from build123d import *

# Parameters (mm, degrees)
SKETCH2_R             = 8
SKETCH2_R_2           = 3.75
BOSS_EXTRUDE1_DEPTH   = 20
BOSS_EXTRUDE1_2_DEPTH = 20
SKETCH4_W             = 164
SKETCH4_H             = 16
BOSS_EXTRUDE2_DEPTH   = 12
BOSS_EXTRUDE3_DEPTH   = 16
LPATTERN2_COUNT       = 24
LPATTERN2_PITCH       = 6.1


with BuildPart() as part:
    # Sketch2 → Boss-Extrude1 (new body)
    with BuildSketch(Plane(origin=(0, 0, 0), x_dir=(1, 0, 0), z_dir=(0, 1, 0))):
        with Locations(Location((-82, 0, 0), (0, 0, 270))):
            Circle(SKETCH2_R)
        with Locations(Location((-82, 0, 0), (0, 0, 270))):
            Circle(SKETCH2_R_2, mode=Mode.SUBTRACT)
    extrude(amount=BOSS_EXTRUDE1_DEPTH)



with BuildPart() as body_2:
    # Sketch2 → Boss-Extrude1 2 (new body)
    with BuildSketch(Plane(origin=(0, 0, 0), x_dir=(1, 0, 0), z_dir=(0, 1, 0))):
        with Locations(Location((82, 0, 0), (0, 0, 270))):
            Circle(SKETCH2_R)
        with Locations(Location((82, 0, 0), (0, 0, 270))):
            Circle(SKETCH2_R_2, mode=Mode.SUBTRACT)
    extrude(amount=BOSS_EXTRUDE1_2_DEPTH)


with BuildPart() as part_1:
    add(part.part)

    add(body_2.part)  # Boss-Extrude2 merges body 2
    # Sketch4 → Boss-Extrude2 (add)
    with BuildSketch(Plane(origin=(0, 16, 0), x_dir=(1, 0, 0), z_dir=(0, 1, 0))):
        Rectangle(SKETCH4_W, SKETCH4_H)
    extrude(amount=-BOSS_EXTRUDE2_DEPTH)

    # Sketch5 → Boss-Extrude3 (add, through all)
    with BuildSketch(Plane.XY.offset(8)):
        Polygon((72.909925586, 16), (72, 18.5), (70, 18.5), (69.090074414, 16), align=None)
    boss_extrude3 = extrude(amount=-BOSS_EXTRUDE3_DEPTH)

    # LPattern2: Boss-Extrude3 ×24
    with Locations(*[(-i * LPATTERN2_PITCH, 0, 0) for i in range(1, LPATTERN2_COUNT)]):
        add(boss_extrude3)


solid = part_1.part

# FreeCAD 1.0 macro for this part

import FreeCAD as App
import Part
import Sketcher

V = App.Vector
Q = App.Units.Quantity

doc = App.newDocument("Part")
params = doc.addObject("Spreadsheet::Sheet", "Params")
for row, (alias, value) in enumerate([
    ("sketch1_diameter", "16 mm"),
    ("sketch1_diameter2", "7.5 mm"),
    ("pad1_length", "20 mm"),
    ("sketch2_diameter", "16 mm"),
    ("sketch2_diameter2", "7.5 mm"),
    ("pad2_length", "20 mm"),
    ("sketch3_width", "164 mm"),
    ("sketch3_height", "16 mm"),
    ("pad3_length", "12 mm"),
    ("sketch4_width", "2 mm"),
    ("pad4_length", "16 mm"),
    ("linearpattern_pitch", "6.1 mm"),
], start=1):
    params.set(f"A{row}", alias)
    params.set(f"B{row}", "=" + value)
    params.setAlias(f"B{row}", alias)

body = doc.addObject("PartDesign::Body", "Body")

sketch1 = doc.addObject("Sketcher::SketchObject", "Sketch")
body.addObject(sketch1)
sketch1.AttachmentSupport = (doc.XZ_Plane, [""])
sketch1.MapMode = "FlatFace"
sketch1.addGeometry([
    Part.Circle(V(-82, 0, 0), V(0, 0, 1), 8),
    Part.Circle(V(-82, 0, 0), V(0, 0, 1), 3.8),
], False)
sketch1.addConstraint([
    Sketcher.Constraint("Coincident", 1, 3, 0, 3),
    Sketcher.Constraint("PointOnObject", 0, 3, -1),
    Sketcher.Constraint("Diameter", 0, 16.0),
    Sketcher.Constraint("Diameter", 1, 7.5),
    Sketcher.Constraint("DistanceX", 0, 3, -1, 1, 82.0),
])
sketch1.setExpression("Constraints[2]", "Params.sketch1_diameter")
sketch1.setExpression("Constraints[3]", "Params.sketch1_diameter2")
pad1 = doc.addObject("PartDesign::Pad", "Pad")
body.addObject(pad1)
pad1.Profile = sketch1
pad1.setExpression("Length", "Params.pad1_length")
pad1.Reversed = True
body2 = doc.addObject("PartDesign::Body", "Body001")

sketch2 = doc.addObject("Sketcher::SketchObject", "Sketch001")
body2.addObject(sketch2)
sketch2.AttachmentSupport = (doc.getObject("XZ_Plane001"), [""])
sketch2.MapMode = "FlatFace"
sketch2.addGeometry([
    Part.Circle(V(82, 0, 0), V(0, 0, 1), 8),
    Part.Circle(V(82, 0, 0), V(0, 0, 1), 3.8),
], False)
sketch2.addConstraint([
    Sketcher.Constraint("Coincident", 1, 3, 0, 3),
    Sketcher.Constraint("PointOnObject", 0, 3, -1),
    Sketcher.Constraint("Diameter", 0, 16.0),
    Sketcher.Constraint("Diameter", 1, 7.5),
    Sketcher.Constraint("DistanceX", -1, 1, 0, 3, 82.0),
])
sketch2.setExpression("Constraints[2]", "Params.sketch2_diameter")
sketch2.setExpression("Constraints[3]", "Params.sketch2_diameter2")
pad2 = doc.addObject("PartDesign::Pad", "Pad001")
body2.addObject(pad2)
pad2.Profile = sketch2
pad2.setExpression("Length", "Params.pad2_length")
pad2.Reversed = True
body.AllowCompound = True
doc.recompute()

boolean = doc.addObject("PartDesign::Boolean", "Boolean")
body.addObject(boolean)
boolean.Type = "Fuse"
boolean.addObjects([body2])

sketch3 = doc.addObject("Sketcher::SketchObject", "Sketch002")
body.addObject(sketch3)
sketch3.AttachmentSupport = (doc.XZ_Plane, [""])
sketch3.MapMode = "FlatFace"
sketch3.AttachmentOffset = App.Placement(V(0, 0, -16), App.Rotation())
sketch3.addGeometry([
    Part.LineSegment(V(-82, -8, 0), V(-82, 8, 0)),
    Part.LineSegment(V(-82, 8, 0), V(82, 8, 0)),
    Part.LineSegment(V(82, 8, 0), V(82, -8, 0)),
    Part.LineSegment(V(82, -8, 0), V(-82, -8, 0)),
], False)
sketch3.addConstraint([
    Sketcher.Constraint("Coincident", 0, 2, 1, 1),
    Sketcher.Constraint("Coincident", 1, 2, 2, 1),
    Sketcher.Constraint("Coincident", 2, 2, 3, 1),
    Sketcher.Constraint("Coincident", 3, 2, 0, 1),
    Sketcher.Constraint("Vertical", 0),
    Sketcher.Constraint("Horizontal", 1),
    Sketcher.Constraint("Vertical", 2),
    Sketcher.Constraint("Horizontal", 3),
    Sketcher.Constraint("Symmetric", 0, 2, 2, 2, -1, 1),
    Sketcher.Constraint("DistanceX", 1, 1, 1, 2, 164.0),
    Sketcher.Constraint("DistanceY", 0, 1, 0, 2, 16.0),
])
sketch3.setExpression("Constraints[9]", "Params.sketch3_width")
sketch3.setExpression("Constraints[10]", "Params.sketch3_height")
pad3 = doc.addObject("PartDesign::Pad", "Pad002")
body.addObject(pad3)
pad3.Profile = sketch3
pad3.setExpression("Length", "Params.pad3_length")

sketch4 = doc.addObject("Sketcher::SketchObject", "Sketch003")
body.addObject(sketch4)
sketch4.AttachmentSupport = (doc.XY_Plane, [""])
sketch4.MapMode = "FlatFace"
sketch4.AttachmentOffset = App.Placement(V(0, 0, 8), App.Rotation())
sketch4.addGeometry([
    Part.LineSegment(V(72.9, 16, 0), V(72, 18.5, 0)),
    Part.LineSegment(V(72, 18.5, 0), V(70, 18.5, 0)),
    Part.LineSegment(V(70, 18.5, 0), V(69.1, 16, 0)),
    Part.LineSegment(V(69.1, 16, 0), V(72.9, 16, 0)),
], False)
sketch4.addConstraint([
    Sketcher.Constraint("Coincident", 0, 2, 1, 1),
    Sketcher.Constraint("Coincident", 1, 2, 2, 1),
    Sketcher.Constraint("Coincident", 2, 2, 3, 1),
    Sketcher.Constraint("Coincident", 3, 2, 0, 1),
    Sketcher.Constraint("Horizontal", 1),
    Sketcher.Constraint("Horizontal", 3),
    Sketcher.Constraint("Equal", 0, 2),
    Sketcher.Constraint("DistanceX", 1, 2, 1, 1, 2.0),
    Sketcher.Constraint("Angle", 0, Q("110 deg")),
    Sketcher.Constraint("DistanceX", -1, 1, 0, 2, 72.0),
    Sketcher.Constraint("DistanceY", -1, 1, 2, 2, 16.0),
    Sketcher.Constraint("DistanceY", -1, 1, 0, 2, 18.5),
])
sketch4.setExpression("Constraints[7]", "Params.sketch4_width")
pad4 = doc.addObject("PartDesign::Pad", "Pad003")
body.addObject(pad4)
pad4.Profile = sketch4
pad4.setExpression("Length", "Params.pad4_length")
pad4.Reversed = True
doc.recompute()

linearpattern = doc.addObject("PartDesign::LinearPattern", "LinearPattern")
body.addObject(linearpattern)
linearpattern.Originals = [pad4]
linearpattern.Direction = (doc.X_Axis, [""])
linearpattern.Mode = "offset"
linearpattern.setExpression("Offset", "Params.linearpattern_pitch")
linearpattern.Occurrences = 24
linearpattern.Reversed = True
body.Tip = linearpattern

doc.recompute()
